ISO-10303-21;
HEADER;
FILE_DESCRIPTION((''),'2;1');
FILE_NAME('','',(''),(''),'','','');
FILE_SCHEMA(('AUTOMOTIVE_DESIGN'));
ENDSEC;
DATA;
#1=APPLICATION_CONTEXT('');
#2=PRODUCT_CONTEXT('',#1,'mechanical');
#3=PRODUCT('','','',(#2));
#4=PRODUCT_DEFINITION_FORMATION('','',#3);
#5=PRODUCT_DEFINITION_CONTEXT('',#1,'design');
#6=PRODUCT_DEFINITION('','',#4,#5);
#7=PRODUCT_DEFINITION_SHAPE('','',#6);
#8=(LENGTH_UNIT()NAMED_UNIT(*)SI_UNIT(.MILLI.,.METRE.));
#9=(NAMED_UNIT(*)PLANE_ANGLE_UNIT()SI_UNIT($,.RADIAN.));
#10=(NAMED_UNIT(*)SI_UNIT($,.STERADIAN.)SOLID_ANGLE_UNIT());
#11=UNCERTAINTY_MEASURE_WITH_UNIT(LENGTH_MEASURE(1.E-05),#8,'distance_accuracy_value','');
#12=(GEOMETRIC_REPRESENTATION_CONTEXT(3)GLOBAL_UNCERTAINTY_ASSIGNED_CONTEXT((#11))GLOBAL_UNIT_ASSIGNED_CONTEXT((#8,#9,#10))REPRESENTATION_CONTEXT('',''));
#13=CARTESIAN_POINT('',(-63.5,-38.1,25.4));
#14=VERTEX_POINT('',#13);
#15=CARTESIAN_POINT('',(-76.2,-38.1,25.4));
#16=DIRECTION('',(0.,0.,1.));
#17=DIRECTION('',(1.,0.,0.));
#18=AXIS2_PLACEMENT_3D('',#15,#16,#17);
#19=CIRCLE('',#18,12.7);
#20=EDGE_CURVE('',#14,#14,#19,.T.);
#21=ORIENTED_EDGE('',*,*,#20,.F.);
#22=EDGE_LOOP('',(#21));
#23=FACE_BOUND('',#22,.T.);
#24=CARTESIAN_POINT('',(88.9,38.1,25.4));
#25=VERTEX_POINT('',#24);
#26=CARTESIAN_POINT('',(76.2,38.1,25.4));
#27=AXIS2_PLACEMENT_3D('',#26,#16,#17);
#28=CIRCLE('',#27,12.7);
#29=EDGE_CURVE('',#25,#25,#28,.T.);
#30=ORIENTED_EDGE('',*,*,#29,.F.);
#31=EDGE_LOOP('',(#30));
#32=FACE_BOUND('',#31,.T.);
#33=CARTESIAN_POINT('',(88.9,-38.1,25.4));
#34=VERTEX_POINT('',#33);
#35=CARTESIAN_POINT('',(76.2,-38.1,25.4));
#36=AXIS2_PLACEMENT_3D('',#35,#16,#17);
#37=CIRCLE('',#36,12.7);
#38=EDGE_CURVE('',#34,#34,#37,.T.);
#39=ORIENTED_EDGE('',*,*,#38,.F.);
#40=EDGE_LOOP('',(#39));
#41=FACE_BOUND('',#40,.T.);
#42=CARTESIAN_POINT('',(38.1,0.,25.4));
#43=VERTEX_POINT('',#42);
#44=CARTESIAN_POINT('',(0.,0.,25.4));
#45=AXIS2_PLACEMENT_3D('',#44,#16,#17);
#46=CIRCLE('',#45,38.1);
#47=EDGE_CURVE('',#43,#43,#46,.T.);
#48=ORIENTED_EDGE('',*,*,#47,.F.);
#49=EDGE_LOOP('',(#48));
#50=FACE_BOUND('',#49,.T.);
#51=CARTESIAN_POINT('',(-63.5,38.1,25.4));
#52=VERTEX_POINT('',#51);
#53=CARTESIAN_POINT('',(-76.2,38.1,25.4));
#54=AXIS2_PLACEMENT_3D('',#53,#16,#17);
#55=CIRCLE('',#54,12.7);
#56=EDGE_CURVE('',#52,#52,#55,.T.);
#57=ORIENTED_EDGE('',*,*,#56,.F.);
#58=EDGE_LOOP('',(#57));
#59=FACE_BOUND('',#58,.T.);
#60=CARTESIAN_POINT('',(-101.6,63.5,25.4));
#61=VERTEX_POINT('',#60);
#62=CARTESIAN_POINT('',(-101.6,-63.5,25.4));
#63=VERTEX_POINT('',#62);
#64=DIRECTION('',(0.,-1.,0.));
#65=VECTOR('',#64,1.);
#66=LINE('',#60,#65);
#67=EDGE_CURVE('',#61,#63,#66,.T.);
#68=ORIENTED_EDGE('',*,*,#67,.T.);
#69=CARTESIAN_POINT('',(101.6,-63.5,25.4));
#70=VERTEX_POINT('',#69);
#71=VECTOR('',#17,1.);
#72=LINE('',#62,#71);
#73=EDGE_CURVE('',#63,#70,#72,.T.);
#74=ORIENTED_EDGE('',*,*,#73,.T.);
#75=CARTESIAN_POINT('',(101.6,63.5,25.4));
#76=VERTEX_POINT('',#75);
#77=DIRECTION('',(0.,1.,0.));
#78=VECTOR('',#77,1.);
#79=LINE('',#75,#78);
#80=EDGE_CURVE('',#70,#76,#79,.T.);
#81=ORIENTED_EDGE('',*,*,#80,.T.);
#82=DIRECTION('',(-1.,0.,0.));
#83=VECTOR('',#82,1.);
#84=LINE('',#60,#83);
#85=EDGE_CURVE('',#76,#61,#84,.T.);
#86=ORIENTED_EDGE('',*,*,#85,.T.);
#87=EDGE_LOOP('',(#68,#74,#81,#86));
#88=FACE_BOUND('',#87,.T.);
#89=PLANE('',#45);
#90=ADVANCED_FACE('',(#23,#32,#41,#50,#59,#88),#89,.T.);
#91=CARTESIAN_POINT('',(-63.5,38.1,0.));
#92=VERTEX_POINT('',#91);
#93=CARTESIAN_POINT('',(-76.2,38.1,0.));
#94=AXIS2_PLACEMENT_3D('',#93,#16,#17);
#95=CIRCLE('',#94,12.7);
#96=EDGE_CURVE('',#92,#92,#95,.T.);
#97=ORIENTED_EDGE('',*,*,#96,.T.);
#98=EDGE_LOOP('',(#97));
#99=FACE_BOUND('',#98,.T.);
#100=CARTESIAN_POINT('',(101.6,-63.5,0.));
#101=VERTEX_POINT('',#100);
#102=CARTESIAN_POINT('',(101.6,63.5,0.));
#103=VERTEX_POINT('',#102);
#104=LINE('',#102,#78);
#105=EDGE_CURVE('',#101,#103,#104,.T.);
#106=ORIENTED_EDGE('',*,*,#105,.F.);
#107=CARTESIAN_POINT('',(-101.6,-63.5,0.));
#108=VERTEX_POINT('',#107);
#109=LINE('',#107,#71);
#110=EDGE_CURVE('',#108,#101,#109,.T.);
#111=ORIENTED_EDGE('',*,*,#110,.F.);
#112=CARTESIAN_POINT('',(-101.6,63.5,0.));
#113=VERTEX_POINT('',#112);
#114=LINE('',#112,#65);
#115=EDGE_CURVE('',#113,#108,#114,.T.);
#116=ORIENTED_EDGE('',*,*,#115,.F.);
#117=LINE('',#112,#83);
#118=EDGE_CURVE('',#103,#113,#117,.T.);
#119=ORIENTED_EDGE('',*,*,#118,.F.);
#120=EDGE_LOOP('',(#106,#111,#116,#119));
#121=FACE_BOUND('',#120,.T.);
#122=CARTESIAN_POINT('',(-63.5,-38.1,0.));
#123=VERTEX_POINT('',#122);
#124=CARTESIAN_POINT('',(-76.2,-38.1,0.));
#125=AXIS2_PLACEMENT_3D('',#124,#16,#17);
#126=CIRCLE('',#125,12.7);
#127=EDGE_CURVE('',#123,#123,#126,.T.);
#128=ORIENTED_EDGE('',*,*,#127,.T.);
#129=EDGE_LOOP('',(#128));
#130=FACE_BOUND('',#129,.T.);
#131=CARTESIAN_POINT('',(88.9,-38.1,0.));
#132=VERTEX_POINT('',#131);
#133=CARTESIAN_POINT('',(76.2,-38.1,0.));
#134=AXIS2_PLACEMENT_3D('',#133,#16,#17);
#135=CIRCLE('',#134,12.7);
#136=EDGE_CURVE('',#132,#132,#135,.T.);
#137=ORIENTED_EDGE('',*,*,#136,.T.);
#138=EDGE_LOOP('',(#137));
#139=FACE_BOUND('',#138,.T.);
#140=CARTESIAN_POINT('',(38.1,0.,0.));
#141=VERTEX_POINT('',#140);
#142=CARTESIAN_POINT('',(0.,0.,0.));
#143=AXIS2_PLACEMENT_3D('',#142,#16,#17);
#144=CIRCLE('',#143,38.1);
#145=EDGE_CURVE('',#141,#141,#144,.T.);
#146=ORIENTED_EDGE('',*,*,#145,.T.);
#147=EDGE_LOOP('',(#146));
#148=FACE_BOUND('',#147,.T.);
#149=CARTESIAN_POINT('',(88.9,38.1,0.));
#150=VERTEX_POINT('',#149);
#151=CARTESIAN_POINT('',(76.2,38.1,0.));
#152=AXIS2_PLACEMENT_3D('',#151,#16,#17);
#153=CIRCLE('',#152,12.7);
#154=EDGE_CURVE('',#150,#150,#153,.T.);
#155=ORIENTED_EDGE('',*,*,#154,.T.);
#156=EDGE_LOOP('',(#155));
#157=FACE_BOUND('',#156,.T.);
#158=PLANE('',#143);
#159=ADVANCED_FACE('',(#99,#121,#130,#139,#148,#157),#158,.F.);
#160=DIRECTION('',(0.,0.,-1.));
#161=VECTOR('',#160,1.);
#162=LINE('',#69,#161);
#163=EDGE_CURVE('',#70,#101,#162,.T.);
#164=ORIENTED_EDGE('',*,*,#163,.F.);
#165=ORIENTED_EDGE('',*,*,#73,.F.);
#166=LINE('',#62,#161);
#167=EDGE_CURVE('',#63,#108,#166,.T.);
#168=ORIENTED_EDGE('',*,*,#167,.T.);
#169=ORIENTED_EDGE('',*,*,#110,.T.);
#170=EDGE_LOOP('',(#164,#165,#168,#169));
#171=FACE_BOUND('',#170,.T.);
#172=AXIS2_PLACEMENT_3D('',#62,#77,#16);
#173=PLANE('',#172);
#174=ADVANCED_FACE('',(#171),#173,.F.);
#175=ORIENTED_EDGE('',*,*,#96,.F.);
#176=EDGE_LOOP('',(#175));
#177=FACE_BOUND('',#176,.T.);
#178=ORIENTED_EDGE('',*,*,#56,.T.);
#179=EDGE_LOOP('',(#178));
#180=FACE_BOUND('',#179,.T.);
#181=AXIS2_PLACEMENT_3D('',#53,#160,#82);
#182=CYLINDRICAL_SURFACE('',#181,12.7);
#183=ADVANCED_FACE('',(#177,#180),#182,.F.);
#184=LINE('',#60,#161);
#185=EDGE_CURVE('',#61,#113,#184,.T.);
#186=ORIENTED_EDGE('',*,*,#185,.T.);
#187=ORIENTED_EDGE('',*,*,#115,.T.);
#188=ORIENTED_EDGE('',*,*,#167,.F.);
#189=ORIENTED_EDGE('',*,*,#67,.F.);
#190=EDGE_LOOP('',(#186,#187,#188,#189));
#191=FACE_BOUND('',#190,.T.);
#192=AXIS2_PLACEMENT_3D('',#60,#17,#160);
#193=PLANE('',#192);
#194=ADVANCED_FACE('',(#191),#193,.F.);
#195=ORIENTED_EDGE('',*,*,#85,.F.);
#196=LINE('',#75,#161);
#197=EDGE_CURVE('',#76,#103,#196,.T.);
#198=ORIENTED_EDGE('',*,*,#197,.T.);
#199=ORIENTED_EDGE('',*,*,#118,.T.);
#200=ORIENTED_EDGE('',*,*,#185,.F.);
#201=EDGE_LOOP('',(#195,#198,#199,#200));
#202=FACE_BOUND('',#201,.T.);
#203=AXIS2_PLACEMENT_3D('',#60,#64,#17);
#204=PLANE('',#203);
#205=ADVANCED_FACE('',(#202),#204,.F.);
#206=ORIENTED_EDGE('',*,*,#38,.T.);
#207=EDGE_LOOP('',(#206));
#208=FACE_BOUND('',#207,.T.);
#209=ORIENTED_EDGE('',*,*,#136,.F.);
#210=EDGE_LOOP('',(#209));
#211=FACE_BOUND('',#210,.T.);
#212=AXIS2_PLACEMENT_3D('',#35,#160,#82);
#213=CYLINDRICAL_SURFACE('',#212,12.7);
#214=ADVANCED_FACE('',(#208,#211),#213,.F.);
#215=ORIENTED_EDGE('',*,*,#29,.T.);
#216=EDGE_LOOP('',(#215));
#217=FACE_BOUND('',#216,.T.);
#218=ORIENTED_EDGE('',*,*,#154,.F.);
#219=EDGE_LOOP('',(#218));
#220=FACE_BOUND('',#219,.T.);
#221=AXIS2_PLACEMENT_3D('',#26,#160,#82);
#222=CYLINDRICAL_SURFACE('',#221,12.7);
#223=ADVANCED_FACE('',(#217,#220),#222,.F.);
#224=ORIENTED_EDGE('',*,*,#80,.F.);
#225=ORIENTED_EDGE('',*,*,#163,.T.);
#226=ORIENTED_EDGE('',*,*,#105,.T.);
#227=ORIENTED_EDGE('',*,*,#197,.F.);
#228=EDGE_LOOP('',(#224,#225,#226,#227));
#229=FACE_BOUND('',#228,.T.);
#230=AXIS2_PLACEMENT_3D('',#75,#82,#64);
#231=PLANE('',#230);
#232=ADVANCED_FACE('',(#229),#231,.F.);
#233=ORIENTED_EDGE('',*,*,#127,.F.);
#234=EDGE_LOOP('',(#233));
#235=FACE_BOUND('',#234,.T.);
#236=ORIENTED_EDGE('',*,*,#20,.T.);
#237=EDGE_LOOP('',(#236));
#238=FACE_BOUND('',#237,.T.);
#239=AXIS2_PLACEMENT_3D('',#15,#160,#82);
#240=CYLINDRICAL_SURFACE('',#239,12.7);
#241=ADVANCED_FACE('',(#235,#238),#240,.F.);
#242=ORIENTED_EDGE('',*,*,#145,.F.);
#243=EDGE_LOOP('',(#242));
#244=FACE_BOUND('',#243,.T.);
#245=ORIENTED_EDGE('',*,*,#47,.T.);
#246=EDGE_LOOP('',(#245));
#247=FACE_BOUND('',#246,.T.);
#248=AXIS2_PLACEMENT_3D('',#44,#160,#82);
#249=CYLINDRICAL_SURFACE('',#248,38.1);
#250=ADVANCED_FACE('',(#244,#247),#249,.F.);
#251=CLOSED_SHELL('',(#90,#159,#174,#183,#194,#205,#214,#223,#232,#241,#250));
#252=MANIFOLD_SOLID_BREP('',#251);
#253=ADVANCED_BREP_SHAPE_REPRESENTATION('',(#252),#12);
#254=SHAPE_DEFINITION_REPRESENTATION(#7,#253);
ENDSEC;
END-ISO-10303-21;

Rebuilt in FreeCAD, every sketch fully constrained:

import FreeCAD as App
import Part
import Sketcher
from FreeCAD import Vector
Q = App.Units.Quantity


def add_polygon(sketch, points):
    """Adds a closed chain of lines whose ends are joined by coincident constraints."""
    first, n = sketch.GeometryCount, len(points)
    for a, b in zip(points, points[1:] + points[:1]):
        sketch.addGeometry(Part.LineSegment(App.Vector(*a, 0), App.Vector(*b, 0)), False)
    for i in range(n):
        sketch.addConstraint(Sketcher.Constraint("Coincident", first + i, 2, first + (i + 1) % n, 1))

doc = App.newDocument("Part")
body = doc.addObject("PartDesign::Body", "Body")

# Sketch on XY plane
sketch1 = doc.addObject("Sketcher::SketchObject", "Sketch")
body.addObject(sketch1)
sketch1.AttachmentSupport = (doc.XY_Plane, [""])
sketch1.MapMode = "FlatFace"
add_polygon(sketch1, [(-102, 64), (-102, -64), (102, -64), (102, 64)])  # lines 0-3
sketch1.addGeometry(Part.Circle(Vector(-76, -38, 0), Vector(0, 0, 1), 13), False)  # 4
sketch1.addGeometry(Part.Circle(Vector(76, -38, 0), Vector(0, 0, 1), 13), False)  # 5
sketch1.addGeometry(Part.Circle(Vector(-76, 38, 0), Vector(0, 0, 1), 13), False)  # 6
sketch1.addGeometry(Part.Circle(Vector(0, 0, 0), Vector(0, 0, 1), 38), False)  # 7
sketch1.addGeometry(Part.Circle(Vector(76, 38, 0), Vector(0, 0, 1), 13), False)  # 8
sketch1.addConstraint([
    Sketcher.Constraint("Vertical", 0),
    Sketcher.Constraint("Horizontal", 1),
    Sketcher.Constraint("Vertical", 2),
    Sketcher.Constraint("Horizontal", 3),
    Sketcher.Constraint("Coincident", 7, 3, -1, 1),
    Sketcher.Constraint("Equal", 4, 5),
    Sketcher.Constraint("Equal", 5, 6),
    Sketcher.Constraint("Equal", 6, 8),
    Sketcher.Constraint("Symmetric", 5, 3, 6, 3, -1, 1),
    Sketcher.Constraint("Symmetric", 4, 3, 8, 3, -1, 1),
    Sketcher.Constraint("Symmetric", 0, 2, 2, 2, -1, 1),
    Sketcher.Constraint("Symmetric", 4, 3, 5, 3, -2),
    Sketcher.Constraint("Diameter", 4, Q("1 in")),
    Sketcher.Constraint("Diameter", 7, Q("3 in")),
    Sketcher.Constraint("DistanceX", 1, 1, 1, 2, Q("8 in")),
    Sketcher.Constraint("DistanceY", 0, 2, 0, 1, Q("5 in")),
    Sketcher.Constraint("DistanceX", 4, 3, -1, 1, Q("3 in")),
    Sketcher.Constraint("DistanceY", 4, 3, 6, 3, Q("3 in")),
])
pad1 = doc.addObject("PartDesign::Pad", "Pad")
body.addObject(pad1)
pad1.Profile = sketch1
pad1.Length = Q("1 in")

doc.recompute()
